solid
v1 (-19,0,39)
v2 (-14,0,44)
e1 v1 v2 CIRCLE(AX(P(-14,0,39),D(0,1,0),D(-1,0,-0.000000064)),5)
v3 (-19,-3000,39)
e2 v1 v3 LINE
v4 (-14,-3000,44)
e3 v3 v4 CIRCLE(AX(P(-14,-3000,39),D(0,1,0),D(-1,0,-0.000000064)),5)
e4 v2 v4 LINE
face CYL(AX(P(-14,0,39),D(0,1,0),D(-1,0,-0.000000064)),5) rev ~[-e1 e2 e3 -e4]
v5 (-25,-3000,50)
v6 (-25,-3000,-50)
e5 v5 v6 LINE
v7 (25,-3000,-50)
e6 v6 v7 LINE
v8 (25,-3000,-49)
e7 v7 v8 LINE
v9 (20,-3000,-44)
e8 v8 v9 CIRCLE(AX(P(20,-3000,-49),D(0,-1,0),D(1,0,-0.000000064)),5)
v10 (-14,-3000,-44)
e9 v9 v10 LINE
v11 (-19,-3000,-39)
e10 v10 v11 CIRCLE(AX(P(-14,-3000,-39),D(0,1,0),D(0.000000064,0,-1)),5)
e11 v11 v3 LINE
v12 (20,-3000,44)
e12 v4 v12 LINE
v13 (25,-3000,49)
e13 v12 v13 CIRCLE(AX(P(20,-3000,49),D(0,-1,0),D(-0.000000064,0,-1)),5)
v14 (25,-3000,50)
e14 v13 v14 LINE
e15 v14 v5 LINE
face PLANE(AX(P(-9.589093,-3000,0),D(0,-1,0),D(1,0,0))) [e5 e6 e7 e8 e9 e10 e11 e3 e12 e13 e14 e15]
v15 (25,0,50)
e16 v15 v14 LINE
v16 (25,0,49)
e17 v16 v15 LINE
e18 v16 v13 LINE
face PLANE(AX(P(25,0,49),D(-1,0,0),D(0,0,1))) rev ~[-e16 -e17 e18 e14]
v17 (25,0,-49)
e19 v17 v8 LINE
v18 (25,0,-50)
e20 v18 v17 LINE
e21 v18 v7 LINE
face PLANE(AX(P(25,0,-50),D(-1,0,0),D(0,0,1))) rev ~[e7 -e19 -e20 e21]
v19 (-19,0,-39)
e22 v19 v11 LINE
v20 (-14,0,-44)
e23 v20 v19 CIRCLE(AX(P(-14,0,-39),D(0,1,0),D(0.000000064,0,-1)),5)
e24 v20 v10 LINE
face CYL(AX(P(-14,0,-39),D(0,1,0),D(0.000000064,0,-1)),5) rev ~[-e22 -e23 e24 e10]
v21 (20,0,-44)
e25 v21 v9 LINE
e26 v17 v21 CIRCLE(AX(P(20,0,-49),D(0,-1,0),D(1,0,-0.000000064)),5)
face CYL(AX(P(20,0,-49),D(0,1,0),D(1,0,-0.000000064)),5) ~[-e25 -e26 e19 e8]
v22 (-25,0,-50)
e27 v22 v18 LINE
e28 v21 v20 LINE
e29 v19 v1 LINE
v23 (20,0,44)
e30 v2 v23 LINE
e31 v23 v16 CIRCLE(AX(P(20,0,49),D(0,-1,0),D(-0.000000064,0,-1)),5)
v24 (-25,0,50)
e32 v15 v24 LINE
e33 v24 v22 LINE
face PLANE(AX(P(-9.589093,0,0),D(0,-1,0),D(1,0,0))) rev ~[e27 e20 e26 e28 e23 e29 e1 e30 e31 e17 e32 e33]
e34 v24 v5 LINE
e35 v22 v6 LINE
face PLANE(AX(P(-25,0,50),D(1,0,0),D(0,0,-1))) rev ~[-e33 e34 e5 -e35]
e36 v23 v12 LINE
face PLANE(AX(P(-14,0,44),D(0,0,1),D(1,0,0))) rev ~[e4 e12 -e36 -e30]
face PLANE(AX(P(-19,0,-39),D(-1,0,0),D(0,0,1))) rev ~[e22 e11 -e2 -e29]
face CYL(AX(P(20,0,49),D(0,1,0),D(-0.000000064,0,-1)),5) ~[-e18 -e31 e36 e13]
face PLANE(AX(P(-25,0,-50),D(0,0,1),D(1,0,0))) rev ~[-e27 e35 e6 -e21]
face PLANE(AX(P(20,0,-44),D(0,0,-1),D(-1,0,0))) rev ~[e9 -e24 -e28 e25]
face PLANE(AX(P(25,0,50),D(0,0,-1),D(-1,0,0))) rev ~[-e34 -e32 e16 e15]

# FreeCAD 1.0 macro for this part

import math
import FreeCAD as App
import Part
import Sketcher
Q = App.Units.Quantity

doc = App.newDocument("Part")
body = doc.addObject("PartDesign::Body", "Body")

sketch1 = body.newObject("Sketcher::SketchObject", "Sketch")
sketch1.AttachmentSupport = (doc.getObject("XZ_Plane"), [""])
sketch1.MapMode = "FlatFace"
sketch1.addGeometry([
    Part.LineSegment(App.Vector(-25, -50, 0), App.Vector(25, -50, 0)),
    Part.LineSegment(App.Vector(25, -50, 0), App.Vector(25, -49, 0)),
    Part.ArcOfCircle(Part.Circle(App.Vector(20, -49, 0), App.Vector(0, 0, 1), 5), math.radians(-0.000004), math.radians(90.000004)),
    Part.LineSegment(App.Vector(20, -44, 0), App.Vector(-14, -44, 0)),
    Part.ArcOfCircle(Part.Circle(App.Vector(-14, -39, 0), App.Vector(0, 0, 1), 5), math.radians(179.999996), math.radians(270.000004)),
    Part.LineSegment(App.Vector(-19, -39, 0), App.Vector(-19, 39, 0)),
    Part.ArcOfCircle(Part.Circle(App.Vector(-14, 39, 0), App.Vector(0, 0, 1), 5), math.radians(89.999996), math.radians(180.000004)),
    Part.LineSegment(App.Vector(-14, 44, 0), App.Vector(20, 44, 0)),
    Part.ArcOfCircle(Part.Circle(App.Vector(20, 49, 0), App.Vector(0, 0, 1), 5), math.radians(-90.000004), math.radians(0.000004)),
    Part.LineSegment(App.Vector(25, 49, 0), App.Vector(25, 50, 0)),
    Part.LineSegment(App.Vector(25, 50, 0), App.Vector(-25, 50, 0)),
    Part.LineSegment(App.Vector(-25, 50, 0), App.Vector(-25, -50, 0)),
], False)
sketch1.addConstraint([
    Sketcher.Constraint("Coincident", 0, 2, 1, 1),
    Sketcher.Constraint("Tangent", 1, 2, 2, 1),
    Sketcher.Constraint("Tangent", 2, 2, 3, 1),
    Sketcher.Constraint("Tangent", 3, 2, 4, 2),
    Sketcher.Constraint("Tangent", 4, 1, 5, 1),
    Sketcher.Constraint("Tangent", 5, 2, 6, 2),
    Sketcher.Constraint("Tangent", 6, 1, 7, 1),
    Sketcher.Constraint("Tangent", 7, 2, 8, 1),
    Sketcher.Constraint("Tangent", 8, 2, 9, 1),
    Sketcher.Constraint("Coincident", 9, 2, 10, 1),
    Sketcher.Constraint("Coincident", 10, 2, 11, 1),
    Sketcher.Constraint("Coincident", 11, 2, 0, 1),
    Sketcher.Constraint("Horizontal", 0),
    Sketcher.Constraint("Vertical", 1),
    Sketcher.Constraint("Horizontal", 3),
    Sketcher.Constraint("Vertical", 5),
    Sketcher.Constraint("Horizontal", 7),
    Sketcher.Constraint("Vertical", 9),
    Sketcher.Constraint("Horizontal", 10),
    Sketcher.Constraint("Vertical", 11),
    Sketcher.Constraint("Equal", 2, 4),
    Sketcher.Constraint("Equal", 4, 6),
    Sketcher.Constraint("Equal", 6, 8),
    Sketcher.Constraint("Symmetric", 0, 2, 10, 2, -1, 1),
    Sketcher.Constraint("Symmetric", 2, 3, 8, 3, -1),
    Sketcher.Constraint("Radius", 2, Q("5 mm")),
    Sketcher.Constraint("DistanceX", 0, 1, 0, 2, Q("50 mm")),
    Sketcher.Constraint("DistanceX", 3, 2, 3, 1, Q("34 mm")),
    Sketcher.Constraint("DistanceY", 1, 1, 1, 2, Q("1 mm")),
    Sketcher.Constraint("DistanceY", 5, 1, 5, 2, Q("78 mm")),
])
pad1 = body.newObject("PartDesign::Pad", "Pad")
pad1.Profile = sketch1
pad1.Length = 3000

doc.recompute()
